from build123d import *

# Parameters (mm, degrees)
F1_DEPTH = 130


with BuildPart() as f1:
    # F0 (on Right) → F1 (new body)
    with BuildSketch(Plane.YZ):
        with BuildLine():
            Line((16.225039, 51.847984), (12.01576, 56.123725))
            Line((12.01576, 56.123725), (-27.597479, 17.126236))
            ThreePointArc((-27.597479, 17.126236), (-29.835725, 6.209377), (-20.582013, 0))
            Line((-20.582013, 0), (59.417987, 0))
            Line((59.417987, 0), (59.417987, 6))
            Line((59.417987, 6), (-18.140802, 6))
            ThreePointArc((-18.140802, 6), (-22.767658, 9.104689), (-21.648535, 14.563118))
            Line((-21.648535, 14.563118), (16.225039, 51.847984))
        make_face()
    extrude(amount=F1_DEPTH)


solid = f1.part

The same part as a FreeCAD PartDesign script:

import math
import FreeCAD as App
import Part
import Sketcher
from FreeCAD import Vector
Q = App.Units.Quantity

doc = App.newDocument("Part")
body = doc.addObject("PartDesign::Body", "Body")

# Sketch on YZ plane
sketch1 = body.newObject("Sketcher::SketchObject", "Sketch")
sketch1.AttachmentSupport = (doc.getObject("YZ_Plane"), [""])
sketch1.MapMode = "FlatFace"
sketch1.addGeometry([
    Part.LineSegment(Vector(16, 52, 0), Vector(12, 56, 0)),  # 0
    Part.LineSegment(Vector(12, 56, 0), Vector(-28, 17, 0)),  # 1
    Part.ArcOfCircle(Part.Circle(Vector(-21, 10, 0), Vector(0, 0, 1), 10), math.radians(135), math.radians(270)),  # 2
    Part.LineSegment(Vector(-21, 0, 0), Vector(59, 0, 0)),  # 3
    Part.LineSegment(Vector(59, 0, 0), Vector(59, 6, 0)),  # 4
    Part.LineSegment(Vector(59, 6, 0), Vector(-18, 6, 0)),  # 5
    Part.ArcOfCircle(Part.Circle(Vector(-18, 11, 0), Vector(0, 0, 1), 5), math.radians(135), math.radians(270)),  # 6
    Part.LineSegment(Vector(-22, 15, 0), Vector(16, 52, 0)),  # 7
], False)
sketch1.addConstraint([
    Sketcher.Constraint("Coincident", 0, 2, 1, 1),
    Sketcher.Constraint("Tangent", 1, 2, 2, 1),
    Sketcher.Constraint("Tangent", 2, 2, 3, 1),
    Sketcher.Constraint("Coincident", 3, 2, 4, 1),
    Sketcher.Constraint("Coincident", 4, 2, 5, 1),
    Sketcher.Constraint("Tangent", 5, 2, 6, 2),
    Sketcher.Constraint("Tangent", 6, 1, 7, 1),
    Sketcher.Constraint("Coincident", 7, 2, 0, 1),
    Sketcher.Constraint("Horizontal", 3),
    Sketcher.Constraint("Vertical", 4),
    Sketcher.Constraint("Horizontal", 5),
    Sketcher.Constraint("PointOnObject", 2, 2, -1),
    Sketcher.Constraint("Perpendicular", 0, 1),
    Sketcher.Constraint("Parallel", 1, 7),
    Sketcher.Constraint("Radius", 2, Q("10 mm")),
    Sketcher.Constraint("Radius", 6, Q("5 mm")),
    Sketcher.Constraint("DistanceX", 3, 1, 3, 2, Q("80 mm")),
    Sketcher.Constraint("DistanceY", 4, 1, 4, 2, Q("6 mm")),
    Sketcher.Constraint("Distance", 0, Q("5.999999 mm")),
    Sketcher.Constraint("DistanceX", 5, 2, 5, 1, Q("77.558789 mm")),
    Sketcher.Constraint("DistanceX", 6, 3, -1, 1, Q("18.140802 mm")),
    Sketcher.Constraint("DistanceX", -1, 1, 0, 2, Q("12.01576 mm")),
])
pad1 = body.newObject("PartDesign::Pad", "Pad")
pad1.Profile = sketch1
pad1.Length = 130

doc.recompute()
